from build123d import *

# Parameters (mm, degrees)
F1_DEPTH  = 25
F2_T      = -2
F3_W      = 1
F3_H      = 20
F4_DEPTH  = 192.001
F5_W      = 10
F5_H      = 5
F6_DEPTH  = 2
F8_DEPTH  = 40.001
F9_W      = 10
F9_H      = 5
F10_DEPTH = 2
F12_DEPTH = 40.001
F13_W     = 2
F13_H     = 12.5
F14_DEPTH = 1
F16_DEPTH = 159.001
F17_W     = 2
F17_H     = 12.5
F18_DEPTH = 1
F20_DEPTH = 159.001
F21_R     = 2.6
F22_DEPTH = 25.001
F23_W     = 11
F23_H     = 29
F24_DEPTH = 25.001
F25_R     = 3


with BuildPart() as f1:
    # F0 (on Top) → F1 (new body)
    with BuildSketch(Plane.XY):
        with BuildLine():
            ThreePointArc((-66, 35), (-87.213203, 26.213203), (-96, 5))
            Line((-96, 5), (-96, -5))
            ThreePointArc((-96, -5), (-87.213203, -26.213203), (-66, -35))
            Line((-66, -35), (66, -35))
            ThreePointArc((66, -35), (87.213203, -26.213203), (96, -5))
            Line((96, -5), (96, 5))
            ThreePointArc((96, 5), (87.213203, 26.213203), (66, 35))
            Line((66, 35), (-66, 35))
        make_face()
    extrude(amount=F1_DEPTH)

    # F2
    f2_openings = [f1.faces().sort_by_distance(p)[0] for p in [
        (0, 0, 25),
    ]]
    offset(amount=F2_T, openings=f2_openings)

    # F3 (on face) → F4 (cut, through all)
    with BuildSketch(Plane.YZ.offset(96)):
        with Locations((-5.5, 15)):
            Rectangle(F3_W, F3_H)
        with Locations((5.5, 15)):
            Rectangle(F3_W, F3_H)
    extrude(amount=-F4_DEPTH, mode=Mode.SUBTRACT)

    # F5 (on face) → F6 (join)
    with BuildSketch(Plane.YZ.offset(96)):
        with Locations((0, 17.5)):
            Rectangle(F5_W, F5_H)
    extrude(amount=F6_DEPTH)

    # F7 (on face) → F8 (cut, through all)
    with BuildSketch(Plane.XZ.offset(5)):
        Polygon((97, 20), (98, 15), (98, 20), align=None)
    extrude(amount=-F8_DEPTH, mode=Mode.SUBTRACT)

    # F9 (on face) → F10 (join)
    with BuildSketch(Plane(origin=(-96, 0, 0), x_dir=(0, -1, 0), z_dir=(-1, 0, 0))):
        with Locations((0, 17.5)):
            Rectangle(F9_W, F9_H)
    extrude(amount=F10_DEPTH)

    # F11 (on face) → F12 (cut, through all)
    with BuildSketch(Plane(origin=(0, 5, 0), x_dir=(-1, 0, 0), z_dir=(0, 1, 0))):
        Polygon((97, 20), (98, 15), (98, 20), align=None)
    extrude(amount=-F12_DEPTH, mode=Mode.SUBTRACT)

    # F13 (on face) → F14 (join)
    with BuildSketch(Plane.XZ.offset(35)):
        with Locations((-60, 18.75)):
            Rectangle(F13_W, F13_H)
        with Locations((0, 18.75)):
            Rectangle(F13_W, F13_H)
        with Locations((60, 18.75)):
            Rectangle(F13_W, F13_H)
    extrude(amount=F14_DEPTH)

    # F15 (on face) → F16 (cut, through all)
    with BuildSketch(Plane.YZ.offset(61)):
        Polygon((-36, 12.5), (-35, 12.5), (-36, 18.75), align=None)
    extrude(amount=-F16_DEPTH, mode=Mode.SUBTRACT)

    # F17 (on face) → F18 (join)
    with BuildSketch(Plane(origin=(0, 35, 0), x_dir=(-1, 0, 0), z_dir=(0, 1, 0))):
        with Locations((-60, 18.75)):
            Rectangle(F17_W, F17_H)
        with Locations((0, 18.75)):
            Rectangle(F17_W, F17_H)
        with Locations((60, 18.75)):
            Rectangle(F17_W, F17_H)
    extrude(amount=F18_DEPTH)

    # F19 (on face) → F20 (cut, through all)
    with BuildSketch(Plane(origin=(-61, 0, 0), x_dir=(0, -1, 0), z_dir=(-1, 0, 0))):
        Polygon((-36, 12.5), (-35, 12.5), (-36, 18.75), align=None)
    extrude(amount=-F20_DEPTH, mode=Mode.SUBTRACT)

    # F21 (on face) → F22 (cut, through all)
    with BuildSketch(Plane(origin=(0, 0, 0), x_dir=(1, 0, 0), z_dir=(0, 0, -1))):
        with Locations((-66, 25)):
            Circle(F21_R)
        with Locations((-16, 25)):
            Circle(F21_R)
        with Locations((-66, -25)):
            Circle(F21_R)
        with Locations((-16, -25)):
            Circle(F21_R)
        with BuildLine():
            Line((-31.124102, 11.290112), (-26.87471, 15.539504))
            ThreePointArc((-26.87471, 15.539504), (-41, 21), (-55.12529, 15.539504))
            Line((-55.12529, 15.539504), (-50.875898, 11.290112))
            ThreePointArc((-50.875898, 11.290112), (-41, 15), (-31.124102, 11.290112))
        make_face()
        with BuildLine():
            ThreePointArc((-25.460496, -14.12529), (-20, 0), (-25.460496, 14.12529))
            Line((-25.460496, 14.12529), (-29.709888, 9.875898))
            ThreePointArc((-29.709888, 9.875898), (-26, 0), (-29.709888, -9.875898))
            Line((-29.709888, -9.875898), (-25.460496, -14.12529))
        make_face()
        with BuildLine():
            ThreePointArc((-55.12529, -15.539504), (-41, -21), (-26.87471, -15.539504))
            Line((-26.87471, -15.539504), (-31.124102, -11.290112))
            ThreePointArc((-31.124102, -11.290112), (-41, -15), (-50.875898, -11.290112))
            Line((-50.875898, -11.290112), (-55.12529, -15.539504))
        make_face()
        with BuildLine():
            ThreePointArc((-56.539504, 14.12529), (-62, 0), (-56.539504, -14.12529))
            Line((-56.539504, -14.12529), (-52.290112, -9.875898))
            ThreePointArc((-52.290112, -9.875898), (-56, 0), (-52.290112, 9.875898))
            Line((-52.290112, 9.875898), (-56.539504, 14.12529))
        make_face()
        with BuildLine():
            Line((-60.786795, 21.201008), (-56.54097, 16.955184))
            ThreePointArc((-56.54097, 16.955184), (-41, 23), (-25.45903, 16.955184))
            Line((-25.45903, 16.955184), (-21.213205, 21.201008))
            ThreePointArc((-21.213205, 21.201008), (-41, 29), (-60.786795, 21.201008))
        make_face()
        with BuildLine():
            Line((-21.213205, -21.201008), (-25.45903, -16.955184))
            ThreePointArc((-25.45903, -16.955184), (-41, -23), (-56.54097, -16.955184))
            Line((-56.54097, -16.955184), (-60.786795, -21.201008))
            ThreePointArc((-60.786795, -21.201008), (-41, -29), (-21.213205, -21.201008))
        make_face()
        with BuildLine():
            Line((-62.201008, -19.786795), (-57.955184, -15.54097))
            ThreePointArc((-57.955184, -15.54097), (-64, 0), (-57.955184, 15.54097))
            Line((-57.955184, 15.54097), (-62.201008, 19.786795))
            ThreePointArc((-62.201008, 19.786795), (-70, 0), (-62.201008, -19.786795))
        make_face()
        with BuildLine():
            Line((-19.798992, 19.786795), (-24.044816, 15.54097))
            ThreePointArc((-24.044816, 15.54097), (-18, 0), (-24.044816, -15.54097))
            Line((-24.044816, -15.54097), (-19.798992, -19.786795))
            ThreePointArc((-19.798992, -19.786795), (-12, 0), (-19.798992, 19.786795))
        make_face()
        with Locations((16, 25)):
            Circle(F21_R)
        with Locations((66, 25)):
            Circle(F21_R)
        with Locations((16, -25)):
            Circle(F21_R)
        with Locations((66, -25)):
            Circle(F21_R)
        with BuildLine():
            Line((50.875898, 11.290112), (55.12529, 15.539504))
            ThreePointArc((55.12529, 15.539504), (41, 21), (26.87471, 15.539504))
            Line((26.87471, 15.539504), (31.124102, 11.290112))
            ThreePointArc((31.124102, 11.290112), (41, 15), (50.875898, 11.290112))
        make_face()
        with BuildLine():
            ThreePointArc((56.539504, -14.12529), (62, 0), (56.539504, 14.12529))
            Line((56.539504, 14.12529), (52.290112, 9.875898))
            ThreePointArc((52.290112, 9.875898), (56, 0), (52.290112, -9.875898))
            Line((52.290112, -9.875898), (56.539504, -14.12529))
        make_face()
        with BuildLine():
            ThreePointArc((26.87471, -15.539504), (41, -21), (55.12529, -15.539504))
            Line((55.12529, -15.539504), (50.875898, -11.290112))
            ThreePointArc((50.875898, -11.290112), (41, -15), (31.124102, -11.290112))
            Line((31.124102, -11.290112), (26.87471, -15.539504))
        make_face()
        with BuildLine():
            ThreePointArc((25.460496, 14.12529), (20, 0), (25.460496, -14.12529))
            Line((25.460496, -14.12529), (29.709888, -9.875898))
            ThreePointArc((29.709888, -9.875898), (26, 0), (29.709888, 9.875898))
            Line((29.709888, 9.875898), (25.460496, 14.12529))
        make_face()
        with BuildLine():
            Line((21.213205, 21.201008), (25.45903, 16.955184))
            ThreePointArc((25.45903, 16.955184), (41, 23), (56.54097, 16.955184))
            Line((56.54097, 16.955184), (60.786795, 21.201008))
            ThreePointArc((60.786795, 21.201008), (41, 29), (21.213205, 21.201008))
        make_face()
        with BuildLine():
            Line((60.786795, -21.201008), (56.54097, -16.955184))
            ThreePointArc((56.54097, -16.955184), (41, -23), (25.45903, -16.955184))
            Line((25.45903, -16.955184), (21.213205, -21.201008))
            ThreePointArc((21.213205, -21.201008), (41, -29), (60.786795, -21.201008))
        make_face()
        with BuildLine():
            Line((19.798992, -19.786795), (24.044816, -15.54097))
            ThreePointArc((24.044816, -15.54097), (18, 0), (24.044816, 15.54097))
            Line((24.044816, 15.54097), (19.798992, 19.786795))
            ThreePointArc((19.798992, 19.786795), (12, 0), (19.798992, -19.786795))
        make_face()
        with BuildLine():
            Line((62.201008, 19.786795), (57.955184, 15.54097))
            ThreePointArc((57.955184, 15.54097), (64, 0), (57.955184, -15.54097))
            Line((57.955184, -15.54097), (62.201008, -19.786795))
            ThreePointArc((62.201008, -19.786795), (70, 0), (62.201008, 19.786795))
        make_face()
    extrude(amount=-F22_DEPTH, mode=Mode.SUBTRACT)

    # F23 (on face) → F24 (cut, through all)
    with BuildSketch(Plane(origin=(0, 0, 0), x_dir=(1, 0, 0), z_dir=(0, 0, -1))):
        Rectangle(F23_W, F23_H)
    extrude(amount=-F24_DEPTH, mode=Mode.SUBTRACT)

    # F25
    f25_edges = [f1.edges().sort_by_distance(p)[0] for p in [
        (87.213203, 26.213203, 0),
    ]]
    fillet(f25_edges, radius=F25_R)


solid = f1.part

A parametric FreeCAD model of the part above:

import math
import FreeCAD as App
import Part
import Sketcher
Q = App.Units.Quantity


def edges_at(feature, points):
    """Names of the edges that pass closest to the given points."""
    edges = feature.Shape.Edges
    near = lambda p: min(range(len(edges)), key=lambda i: edges[i].distToShape(Part.Vertex(*p))[0])
    return sorted({f"Edge{near(p) + 1}" for p in points})


def faces_at(feature, points):
    """Names of the faces that lie closest to the given points."""
    faces = feature.Shape.Faces
    near = lambda p: min(range(len(faces)), key=lambda i: faces[i].distToShape(Part.Vertex(*p))[0])
    return sorted({f"Face{near(p) + 1}" for p in points})


def add_polygon(sketch, points):
    """Adds a closed chain of lines whose ends are joined by coincident constraints."""
    first, n = sketch.GeometryCount, len(points)
    for a, b in zip(points, points[1:] + points[:1]):
        sketch.addGeometry(Part.LineSegment(App.Vector(*a, 0), App.Vector(*b, 0)), False)
    for i in range(n):
        sketch.addConstraint(Sketcher.Constraint("Coincident", first + i, 2, first + (i + 1) % n, 1))

doc = App.newDocument("Part")
body = doc.addObject("PartDesign::Body", "Body")

# Sketch on XY plane
sketch1 = body.newObject("Sketcher::SketchObject", "Sketch")
sketch1.AttachmentSupport = (doc.getObject("XY_Plane"), [""])
sketch1.MapMode = "FlatFace"
sketch1.addGeometry([
    Part.ArcOfCircle(Part.Circle(App.Vector(-66, 5, 0), App.Vector(0, 0, 1), 30), math.radians(90), math.radians(180)),  # 0
    Part.LineSegment(App.Vector(-96, 5, 0), App.Vector(-96, -5, 0)),  # 1
    Part.ArcOfCircle(Part.Circle(App.Vector(-66, -5, 0), App.Vector(0, 0, 1), 30), math.radians(-180), math.radians(-90)),  # 2
    Part.LineSegment(App.Vector(-66, -35, 0), App.Vector(66, -35, 0)),  # 3
    Part.ArcOfCircle(Part.Circle(App.Vector(66, -5, 0), App.Vector(0, 0, 1), 30), math.radians(-90), math.radians(0)),  # 4
    Part.LineSegment(App.Vector(96, -5, 0), App.Vector(96, 5, 0)),  # 5
    Part.ArcOfCircle(Part.Circle(App.Vector(66, 5, 0), App.Vector(0, 0, 1), 30), math.radians(0), math.radians(90)),  # 6
    Part.LineSegment(App.Vector(66, 35, 0), App.Vector(-66, 35, 0)),  # 7
], False)
sketch1.addConstraint([
    Sketcher.Constraint("Tangent", 0, 2, 1, 1),
    Sketcher.Constraint("Tangent", 1, 2, 2, 1),
    Sketcher.Constraint("Tangent", 2, 2, 3, 1),
    Sketcher.Constraint("Tangent", 3, 2, 4, 1),
    Sketcher.Constraint("Tangent", 4, 2, 5, 1),
    Sketcher.Constraint("Tangent", 5, 2, 6, 1),
    Sketcher.Constraint("Tangent", 6, 2, 7, 1),
    Sketcher.Constraint("Tangent", 7, 2, 0, 1),
    Sketcher.Constraint("Vertical", 1),
    Sketcher.Constraint("Horizontal", 3),
    Sketcher.Constraint("Vertical", 5),
    Sketcher.Constraint("Horizontal", 7),
    Sketcher.Constraint("Equal", 0, 2),
    Sketcher.Constraint("Equal", 2, 4),
    Sketcher.Constraint("Equal", 4, 6),
    Sketcher.Constraint("Symmetric", 0, 3, 4, 3, -1, 1),
    Sketcher.Constraint("Radius", 0, Q("30.000001 mm")),
    Sketcher.Constraint("DistanceX", 3, 1, 3, 2, Q("132 mm")),
    Sketcher.Constraint("DistanceY", 1, 2, 1, 1, Q("10 mm")),
])
pad1 = body.newObject("PartDesign::Pad", "Pad")
pad1.Profile = sketch1
pad1.Length = 25
doc.recompute()

thickness = body.newObject("PartDesign::Thickness", "Thickness")
thickness.Base = (pad1, faces_at(pad1, [(0, 0, 25)]))
thickness.Value = 2
thickness.Reversed = True
thickness.Join = "Arc"

# Sketch on YZ plane
sketch2 = body.newObject("Sketcher::SketchObject", "Sketch001")
sketch2.AttachmentSupport = (doc.getObject("YZ_Plane"), [""])
sketch2.MapMode = "FlatFace"
sketch2.AttachmentOffset = App.Placement(App.Vector(0, 0, 96), App.Rotation())
add_polygon(sketch2, [(-6, 25), (-6, 5), (-5, 5), (-5, 25)])  # lines 0-3
add_polygon(sketch2, [(5, 25), (5, 5), (6, 5), (6, 25)])  # lines 4-7
sketch2.addConstraint([
    Sketcher.Constraint("Vertical", 0),
    Sketcher.Constraint("Horizontal", 1),
    Sketcher.Constraint("Vertical", 2),
    Sketcher.Constraint("Horizontal", 3),
    Sketcher.Constraint("Vertical", 4),
    Sketcher.Constraint("Horizontal", 5),
    Sketcher.Constraint("Vertical", 6),
    Sketcher.Constraint("Horizontal", 7),
    Sketcher.Constraint("Symmetric", 1, 2, 4, 2, -2),
    Sketcher.Constraint("Symmetric", 3, 2, 6, 2, -2),
    Sketcher.Constraint("DistanceX", 1, 1, 1, 2, Q("1 mm")),
    Sketcher.Constraint("DistanceY", 0, 2, 0, 1, Q("20 mm")),
    Sketcher.Constraint("DistanceX", 0, 2, -1, 1, Q("6 mm")),
    Sketcher.Constraint("DistanceY", -1, 1, 0, 2, Q("5 mm")),
])
pocket1 = body.newObject("PartDesign::Pocket", "Pocket")
pocket1.Profile = sketch2
pocket1.Type = "ThroughAll"

# Sketch on YZ plane
sketch3 = body.newObject("Sketcher::SketchObject", "Sketch002")
sketch3.AttachmentSupport = (doc.getObject("YZ_Plane"), [""])
sketch3.MapMode = "FlatFace"
sketch3.AttachmentOffset = App.Placement(App.Vector(0, 0, 96), App.Rotation())
add_polygon(sketch3, [(-5, 20), (-5, 15), (5, 15), (5, 20)])  # lines 0-3
sketch3.addConstraint([
    Sketcher.Constraint("Vertical", 0),
    Sketcher.Constraint("Horizontal", 1),
    Sketcher.Constraint("Vertical", 2),
    Sketcher.Constraint("Horizontal", 3),
    Sketcher.Constraint("DistanceX", 1, 1, 1, 2, Q("10 mm")),
    Sketcher.Constraint("DistanceY", 0, 2, 0, 1, Q("5 mm")),
    Sketcher.Constraint("DistanceX", 0, 2, -1, 1, Q("5 mm")),
    Sketcher.Constraint("DistanceY", -1, 1, 0, 2, Q("15 mm")),
])
pad2 = body.newObject("PartDesign::Pad", "Pad001")
pad2.Profile = sketch3
pad2.Length = 2

# Sketch on XZ plane
sketch4 = body.newObject("Sketcher::SketchObject", "Sketch003")
sketch4.AttachmentSupport = (doc.getObject("XZ_Plane"), [""])
sketch4.MapMode = "FlatFace"
sketch4.AttachmentOffset = App.Placement(App.Vector(0, 0, 5), App.Rotation())
add_polygon(sketch4, [(97, 20), (98, 15), (98, 20)])  # lines 0-2
sketch4.addConstraint([
    Sketcher.Constraint("Vertical", 1),
    Sketcher.Constraint("Horizontal", 2),
    Sketcher.Constraint("DistanceX", 2, 2, 2, 1, Q("1 mm")),
    Sketcher.Constraint("DistanceY", 1, 1, 1, 2, Q("5 mm")),
    Sketcher.Constraint("DistanceX", -1, 1, 0, 2, Q("98 mm")),
    Sketcher.Constraint("DistanceY", -1, 1, 0, 2, Q("15 mm")),
])
pocket2 = body.newObject("PartDesign::Pocket", "Pocket001")
pocket2.Profile = sketch4
pocket2.Type = "ThroughAll"

# Sketch on YZ plane
sketch5 = body.newObject("Sketcher::SketchObject", "Sketch004")
sketch5.AttachmentSupport = (doc.getObject("YZ_Plane"), [""])
sketch5.MapMode = "FlatFace"
sketch5.AttachmentOffset = App.Placement(App.Vector(0, 0, -96), App.Rotation())
add_polygon(sketch5, [(5, 20), (5, 15), (-5, 15), (-5, 20)])  # lines 0-3
sketch5.addConstraint([
    Sketcher.Constraint("Vertical", 0),
    Sketcher.Constraint("Horizontal", 1),
    Sketcher.Constraint("Vertical", 2),
    Sketcher.Constraint("Horizontal", 3),
    Sketcher.Constraint("DistanceX", 1, 2, 1, 1, Q("10 mm")),
    Sketcher.Constraint("DistanceY", 0, 2, 0, 1, Q("5 mm")),
    Sketcher.Constraint("DistanceX", -1, 1, 0, 2, Q("5 mm")),
    Sketcher.Constraint("DistanceY", -1, 1, 0, 2, Q("15 mm")),
])
pad3 = body.newObject("PartDesign::Pad", "Pad002")
pad3.Profile = sketch5
pad3.Length = 2
pad3.Reversed = True

# Sketch on XZ plane
sketch6 = body.newObject("Sketcher::SketchObject", "Sketch005")
sketch6.AttachmentSupport = (doc.getObject("XZ_Plane"), [""])
sketch6.MapMode = "FlatFace"
sketch6.AttachmentOffset = App.Placement(App.Vector(0, 0, -5), App.Rotation())
add_polygon(sketch6, [(-97, 20), (-98, 15), (-98, 20)])  # lines 0-2
sketch6.addConstraint([
    Sketcher.Constraint("Vertical", 1),
    Sketcher.Constraint("Horizontal", 2),
    Sketcher.Constraint("DistanceX", 2, 1, 2, 2, Q("1 mm")),
    Sketcher.Constraint("DistanceY", 1, 1, 1, 2, Q("5 mm")),
    Sketcher.Constraint("DistanceX", 0, 2, -1, 1, Q("98 mm")),
    Sketcher.Constraint("DistanceY", -1, 1, 0, 2, Q("15 mm")),
])
pocket3 = body.newObject("PartDesign::Pocket", "Pocket002")
pocket3.Profile = sketch6
pocket3.Type = "ThroughAll"
pocket3.Reversed = True

# Sketch on XZ plane
sketch7 = body.newObject("Sketcher::SketchObject", "Sketch006")
sketch7.AttachmentSupport = (doc.getObject("XZ_Plane"), [""])
sketch7.MapMode = "FlatFace"
sketch7.AttachmentOffset = App.Placement(App.Vector(0, 0, 35), App.Rotation())
add_polygon(sketch7, [(-61, 25), (-61, 12.5), (-59, 12.5), (-59, 25)])  # lines 0-3
add_polygon(sketch7, [(-1, 25), (-1, 12.5), (1, 12.5), (1, 25)])  # lines 4-7
add_polygon(sketch7, [(59, 25), (59, 12.5), (61, 12.5), (61, 25)])  # lines 8-11
sketch7.addConstraint([
    Sketcher.Constraint("Vertical", 0),
    Sketcher.Constraint("Horizontal", 1),
    Sketcher.Constraint("Vertical", 2),
    Sketcher.Constraint("Horizontal", 3),
    Sketcher.Constraint("Vertical", 4),
    Sketcher.Constraint("Horizontal", 5),
    Sketcher.Constraint("Vertical", 6),
    Sketcher.Constraint("Horizontal", 7),
    Sketcher.Constraint("Vertical", 8),
    Sketcher.Constraint("Horizontal", 9),
    Sketcher.Constraint("Vertical", 10),
    Sketcher.Constraint("Horizontal", 11),
    Sketcher.Constraint("Symmetric", 1, 2, 8, 2, -2),
    Sketcher.Constraint("Symmetric", 3, 2, 10, 2, -2),
    Sketcher.Constraint("Horizontal", 1, 2, 4, 2),
    Sketcher.Constraint("Horizontal", 3, 2, 6, 2),
    Sketcher.Constraint("Equal", 3, 5),
    Sketcher.Constraint("DistanceX", 1, 1, 1, 2, Q("2 mm")),
    Sketcher.Constraint("DistanceY", 0, 2, 0, 1, Q("12.5 mm")),
    Sketcher.Constraint("DistanceX", 0, 2, -1, 1, Q("61 mm")),
    Sketcher.Constraint("DistanceY", -1, 1, 2, 2, Q("25 mm")),
    Sketcher.Constraint("DistanceX", 4, 2, -1, 1, Q("1 mm")),
])
pad4 = body.newObject("PartDesign::Pad", "Pad003")
pad4.Profile = sketch7
pad4.Length = 1

# Sketch on YZ plane
sketch8 = body.newObject("Sketcher::SketchObject", "Sketch007")
sketch8.AttachmentSupport = (doc.getObject("YZ_Plane"), [""])
sketch8.MapMode = "FlatFace"
sketch8.AttachmentOffset = App.Placement(App.Vector(0, 0, 61), App.Rotation())
add_polygon(sketch8, [(-36, 12.5), (-35, 12.5), (-36, 18.8)])  # lines 0-2
sketch8.addConstraint([
    Sketcher.Constraint("Horizontal", 0),
    Sketcher.Constraint("Vertical", 2),
    Sketcher.Constraint("DistanceX", 0, 1, 0, 2, Q("1 mm")),
    Sketcher.Constraint("DistanceX", 0, 2, -1, 1, Q("35 mm")),
    Sketcher.Constraint("DistanceY", 2, 2, 2, 1, Q("6.25 mm")),
    Sketcher.Constraint("DistanceY", -1, 1, 0, 2, Q("12.5 mm")),
])
pocket4 = body.newObject("PartDesign::Pocket", "Pocket003")
pocket4.Profile = sketch8
pocket4.Type = "ThroughAll"

# Sketch on XZ plane
sketch9 = body.newObject("Sketcher::SketchObject", "Sketch008")
sketch9.AttachmentSupport = (doc.getObject("XZ_Plane"), [""])
sketch9.MapMode = "FlatFace"
sketch9.AttachmentOffset = App.Placement(App.Vector(0, 0, -35), App.Rotation())
add_polygon(sketch9, [(61, 25), (61, 12.5), (59, 12.5), (59, 25)])  # lines 0-3
add_polygon(sketch9, [(1, 25), (1, 12.5), (-1, 12.5), (-1, 25)])  # lines 4-7
add_polygon(sketch9, [(-59, 25), (-59, 12.5), (-61, 12.5), (-61, 25)])  # lines 8-11
sketch9.addConstraint([
    Sketcher.Constraint("Vertical", 0),
    Sketcher.Constraint("Horizontal", 1),
    Sketcher.Constraint("Vertical", 2),
    Sketcher.Constraint("Horizontal", 3),
    Sketcher.Constraint("Vertical", 4),
    Sketcher.Constraint("Horizontal", 5),
    Sketcher.Constraint("Vertical", 6),
    Sketcher.Constraint("Horizontal", 7),
    Sketcher.Constraint("Vertical", 8),
    Sketcher.Constraint("Horizontal", 9),
    Sketcher.Constraint("Vertical", 10),
    Sketcher.Constraint("Horizontal", 11),
    Sketcher.Constraint("Symmetric", 1, 2, 8, 2, -2),
    Sketcher.Constraint("Symmetric", 3, 2, 10, 2, -2),
    Sketcher.Constraint("Horizontal", 1, 2, 4, 2),
    Sketcher.Constraint("Horizontal", 3, 2, 6, 2),
    Sketcher.Constraint("Equal", 3, 5),
    Sketcher.Constraint("DistanceX", 1, 2, 1, 1, Q("2 mm")),
    Sketcher.Constraint("DistanceY", 0, 2, 0, 1, Q("12.5 mm")),
    Sketcher.Constraint("DistanceX", -1, 1, 0, 2, Q("61 mm")),
    Sketcher.Constraint("DistanceY", -1, 1, 2, 2, Q("25 mm")),
    Sketcher.Constraint("DistanceX", -1, 1, 4, 2, Q("1 mm")),
])
pad5 = body.newObject("PartDesign::Pad", "Pad004")
pad5.Profile = sketch9
pad5.Length = 1
pad5.Reversed = True

# Sketch on YZ plane
sketch10 = body.newObject("Sketcher::SketchObject", "Sketch009")
sketch10.AttachmentSupport = (doc.getObject("YZ_Plane"), [""])
sketch10.MapMode = "FlatFace"
sketch10.AttachmentOffset = App.Placement(App.Vector(0, 0, -61), App.Rotation())
add_polygon(sketch10, [(36, 12.5), (35, 12.5), (36, 18.8)])  # lines 0-2
sketch10.addConstraint([
    Sketcher.Constraint("Horizontal", 0),
    Sketcher.Constraint("Vertical", 2),
    Sketcher.Constraint("DistanceX", 0, 2, 0, 1, Q("1 mm")),
    Sketcher.Constraint("DistanceX", -1, 1, 0, 2, Q("35 mm")),
    Sketcher.Constraint("DistanceY", 2, 2, 2, 1, Q("6.25 mm")),
    Sketcher.Constraint("DistanceY", -1, 1, 0, 2, Q("12.5 mm")),
])
pocket5 = body.newObject("PartDesign::Pocket", "Pocket004")
pocket5.Profile = sketch10
pocket5.Type = "ThroughAll"
pocket5.Reversed = True

# Sketch on XY plane
sketch11 = body.newObject("Sketcher::SketchObject", "Sketch010")
sketch11.AttachmentSupport = (doc.getObject("XY_Plane"), [""])
sketch11.MapMode = "FlatFace"
sketch11.addGeometry([
    Part.Circle(App.Vector(-66, -25, 0), App.Vector(0, 0, 1), 2.6),  # 0
    Part.Circle(App.Vector(-16, -25, 0), App.Vector(0, 0, 1), 2.6),  # 1
    Part.Circle(App.Vector(-66, 25, 0), App.Vector(0, 0, 1), 2.6),  # 2
    Part.Circle(App.Vector(-16, 25, 0), App.Vector(0, 0, 1), 2.6),  # 3
    Part.LineSegment(App.Vector(-31.1, -11.3, 0), App.Vector(-26.9, -15.5, 0)),  # 4
    Part.ArcOfCircle(Part.Circle(App.Vector(-41, 0, 0), App.Vector(0, 0, 1), 21), math.radians(-132), math.radians(-48)),  # 5
    Part.LineSegment(App.Vector(-55.1, -15.5, 0), App.Vector(-50.9, -11.3, 0)),  # 6
    Part.ArcOfCircle(Part.Circle(App.Vector(-41, 0, 0), App.Vector(0, 0, 1), 15), math.radians(-131), math.radians(-49)),  # 7
    Part.ArcOfCircle(Part.Circle(App.Vector(-41, 0, 0), App.Vector(0, 0, 1), 21), math.radians(-42), math.radians(42)),  # 8
    Part.LineSegment(App.Vector(-25.5, -14.1, 0), App.Vector(-29.7, -9.9, 0)),  # 9
    Part.ArcOfCircle(Part.Circle(App.Vector(-41, 0, 0), App.Vector(0, 0, 1), 15), math.radians(-41), math.radians(41)),  # 10
    Part.LineSegment(App.Vector(-29.7, 9.9, 0), App.Vector(-25.5, 14.1, 0)),  # 11
    Part.ArcOfCircle(Part.Circle(App.Vector(-41, 0, 0), App.Vector(0, 0, 1), 21), math.radians(48), math.radians(132)),  # 12
    Part.LineSegment(App.Vector(-26.9, 15.5, 0), App.Vector(-31.1, 11.3, 0)),  # 13
    Part.ArcOfCircle(Part.Circle(App.Vector(-41, 0, 0), App.Vector(0, 0, 1), 15), math.radians(49), math.radians(131)),  # 14
    Part.LineSegment(App.Vector(-50.9, 11.3, 0), App.Vector(-55.1, 15.5, 0)),  # 15
    Part.ArcOfCircle(Part.Circle(App.Vector(-41, 0, 0), App.Vector(0, 0, 1), 21), math.radians(138), math.radians(222)),  # 16
    Part.LineSegment(App.Vector(-56.5, 14.1, 0), App.Vector(-52.3, 9.9, 0)),  # 17
    Part.ArcOfCircle(Part.Circle(App.Vector(-41, 0, 0), App.Vector(0, 0, 1), 15), math.radians(139), math.radians(221)),  # 18
    Part.LineSegment(App.Vector(-52.3, -9.9, 0), App.Vector(-56.5, -14.1, 0)),  # 19
    Part.LineSegment(App.Vector(-60.8, -21.2, 0), App.Vector(-56.5, -17, 0)),  # 20
    Part.ArcOfCircle(Part.Circle(App.Vector(-41, 0, 0), App.Vector(0, 0, 1), 23), math.radians(-133), math.radians(-47)),  # 21
    Part.LineSegment(App.Vector(-25.5, -17, 0), App.Vector(-21.2, -21.2, 0)),  # 22
    Part.ArcOfCircle(Part.Circle(App.Vector(-41, 0, 0), App.Vector(0, 0, 1), 29), math.radians(-133), math.radians(-47)),  # 23
    Part.LineSegment(App.Vector(-21.2, 21.2, 0), App.Vector(-25.5, 17, 0)),  # 24
    Part.ArcOfCircle(Part.Circle(App.Vector(-41, 0, 0), App.Vector(0, 0, 1), 23), math.radians(47), math.radians(133)),  # 25
    Part.LineSegment(App.Vector(-56.5, 17, 0), App.Vector(-60.8, 21.2, 0)),  # 26
    Part.ArcOfCircle(Part.Circle(App.Vector(-41, 0, 0), App.Vector(0, 0, 1), 29), math.radians(47), math.radians(133)),  # 27
    Part.LineSegment(App.Vector(-62.2, 19.8, 0), App.Vector(-58, 15.5, 0)),  # 28
    Part.ArcOfCircle(Part.Circle(App.Vector(-41, 0, 0), App.Vector(0, 0, 1), 23), math.radians(137), math.radians(223)),  # 29
    Part.LineSegment(App.Vector(-58, -15.5, 0), App.Vector(-62.2, -19.8, 0)),  # 30
    Part.ArcOfCircle(Part.Circle(App.Vector(-41, 0, 0), App.Vector(0, 0, 1), 29), math.radians(137), math.radians(223)),  # 31
    Part.LineSegment(App.Vector(-19.8, -19.8, 0), App.Vector(-24, -15.5, 0)),  # 32
    Part.ArcOfCircle(Part.Circle(App.Vector(-41, 0, 0), App.Vector(0, 0, 1), 23), math.radians(-43), math.radians(43)),  # 33
    Part.LineSegment(App.Vector(-24, 15.5, 0), App.Vector(-19.8, 19.8, 0)),  # 34
    Part.ArcOfCircle(Part.Circle(App.Vector(-41, 0, 0), App.Vector(0, 0, 1), 29), math.radians(-43), math.radians(43)),  # 35
    Part.Circle(App.Vector(16, -25, 0), App.Vector(0, 0, 1), 2.6),  # 36
    Part.Circle(App.Vector(66, -25, 0), App.Vector(0, 0, 1), 2.6),  # 37
    Part.Circle(App.Vector(16, 25, 0), App.Vector(0, 0, 1), 2.6),  # 38
    Part.Circle(App.Vector(66, 25, 0), App.Vector(0, 0, 1), 2.6),  # 39
    Part.LineSegment(App.Vector(50.9, -11.3, 0), App.Vector(55.1, -15.5, 0)),  # 40
    Part.ArcOfCircle(Part.Circle(App.Vector(41, 0, 0), App.Vector(0, 0, 1), 21), math.radians(-132), math.radians(-48)),  # 41
    Part.LineSegment(App.Vector(26.9, -15.5, 0), App.Vector(31.1, -11.3, 0)),  # 42
    Part.ArcOfCircle(Part.Circle(App.Vector(41, 0, 0), App.Vector(0, 0, 1), 15), math.radians(-131), math.radians(-49)),  # 43
    Part.ArcOfCircle(Part.Circle(App.Vector(41, 0, 0), App.Vector(0, 0, 1), 21), math.radians(-42), math.radians(42)),  # 44
    Part.LineSegment(App.Vector(56.5, -14.1, 0), App.Vector(52.3, -9.9, 0)),  # 45
    Part.ArcOfCircle(Part.Circle(App.Vector(41, 0, 0), App.Vector(0, 0, 1), 15), math.radians(-41), math.radians(41)),  # 46
    Part.LineSegment(App.Vector(52.3, 9.9, 0), App.Vector(56.5, 14.1, 0)),  # 47
    Part.ArcOfCircle(Part.Circle(App.Vector(41, 0, 0), App.Vector(0, 0, 1), 21), math.radians(48), math.radians(132)),  # 48
    Part.LineSegment(App.Vector(55.1, 15.5, 0), App.Vector(50.9, 11.3, 0)),  # 49
    Part.ArcOfCircle(Part.Circle(App.Vector(41, 0, 0), App.Vector(0, 0, 1), 15), math.radians(49), math.radians(131)),  # 50
    Part.LineSegment(App.Vector(31.1, 11.3, 0), App.Vector(26.9, 15.5, 0)),  # 51
    Part.ArcOfCircle(Part.Circle(App.Vector(41, 0, 0), App.Vector(0, 0, 1), 21), math.radians(138), math.radians(222)),  # 52
    Part.LineSegment(App.Vector(25.5, 14.1, 0), App.Vector(29.7, 9.9, 0)),  # 53
    Part.ArcOfCircle(Part.Circle(App.Vector(41, 0, 0), App.Vector(0, 0, 1), 15), math.radians(139), math.radians(221)),  # 54
    Part.LineSegment(App.Vector(29.7, -9.9, 0), App.Vector(25.5, -14.1, 0)),  # 55
    Part.LineSegment(App.Vector(21.2, -21.2, 0), App.Vector(25.5, -17, 0)),  # 56
    Part.ArcOfCircle(Part.Circle(App.Vector(41, 0, 0), App.Vector(0, 0, 1), 23), math.radians(-133), math.radians(-47)),  # 57
    Part.LineSegment(App.Vector(56.5, -17, 0), App.Vector(60.8, -21.2, 0)),  # 58
    Part.ArcOfCircle(Part.Circle(App.Vector(41, 0, 0), App.Vector(0, 0, 1), 29), math.radians(-133), math.radians(-47)),  # 59
    Part.LineSegment(App.Vector(60.8, 21.2, 0), App.Vector(56.5, 17, 0)),  # 60
    Part.ArcOfCircle(Part.Circle(App.Vector(41, 0, 0), App.Vector(0, 0, 1), 23), math.radians(47), math.radians(133)),  # 61
    Part.LineSegment(App.Vector(25.5, 17, 0), App.Vector(21.2, 21.2, 0)),  # 62
    Part.ArcOfCircle(Part.Circle(App.Vector(41, 0, 0), App.Vector(0, 0, 1), 29), math.radians(47), math.radians(133)),  # 63
    Part.LineSegment(App.Vector(19.8, 19.8, 0), App.Vector(24, 15.5, 0)),  # 64
    Part.ArcOfCircle(Part.Circle(App.Vector(41, 0, 0), App.Vector(0, 0, 1), 23), math.radians(137), math.radians(223)),  # 65
    Part.LineSegment(App.Vector(24, -15.5, 0), App.Vector(19.8, -19.8, 0)),  # 66
    Part.ArcOfCircle(Part.Circle(App.Vector(41, 0, 0), App.Vector(0, 0, 1), 29), math.radians(137), math.radians(223)),  # 67
    Part.LineSegment(App.Vector(62.2, -19.8, 0), App.Vector(58, -15.5, 0)),  # 68
    Part.ArcOfCircle(Part.Circle(App.Vector(41, 0, 0), App.Vector(0, 0, 1), 23), math.radians(-43), math.radians(43)),  # 69
    Part.LineSegment(App.Vector(58, 15.5, 0), App.Vector(62.2, 19.8, 0)),  # 70
    Part.ArcOfCircle(Part.Circle(App.Vector(41, 0, 0), App.Vector(0, 0, 1), 29), math.radians(-43), math.radians(43)),  # 71
], False)
sketch11.addConstraint([
    Sketcher.Constraint("Coincident", 4, 2, 5, 2),
    Sketcher.Constraint("Coincident", 5, 1, 6, 1),
    Sketcher.Constraint("Coincident", 6, 2, 7, 1),
    Sketcher.Constraint("Coincident", 7, 2, 4, 1),
    Sketcher.Constraint("Coincident", 8, 1, 9, 1),
    Sketcher.Constraint("Coincident", 9, 2, 10, 1),
    Sketcher.Constraint("Coincident", 10, 2, 11, 1),
    Sketcher.Constraint("Coincident", 11, 2, 8, 2),
    Sketcher.Constraint("Coincident", 12, 1, 13, 1),
    Sketcher.Constraint("Coincident", 13, 2, 14, 1),
    Sketcher.Constraint("Coincident", 14, 2, 15, 1),
    Sketcher.Constraint("Coincident", 15, 2, 12, 2),
    Sketcher.Constraint("Coincident", 16, 1, 17, 1),
    Sketcher.Constraint("Coincident", 17, 2, 18, 1),
    Sketcher.Constraint("Coincident", 18, 2, 19, 1),
    Sketcher.Constraint("Coincident", 19, 2, 16, 2),
    Sketcher.Constraint("Coincident", 20, 2, 21, 1),
    Sketcher.Constraint("Coincident", 21, 2, 22, 1),
    Sketcher.Constraint("Coincident", 22, 2, 23, 2),
    Sketcher.Constraint("Coincident", 23, 1, 20, 1),
    Sketcher.Constraint("Coincident", 24, 2, 25, 1),
    Sketcher.Constraint("Coincident", 25, 2, 26, 1),
    Sketcher.Constraint("Coincident", 26, 2, 27, 2),
    Sketcher.Constraint("Coincident", 27, 1, 24, 1),
    Sketcher.Constraint("Coincident", 28, 2, 29, 1),
    Sketcher.Constraint("Coincident", 29, 2, 30, 1),
    Sketcher.Constraint("Coincident", 30, 2, 31, 2),
    Sketcher.Constraint("Coincident", 31, 1, 28, 1),
    Sketcher.Constraint("Coincident", 32, 2, 33, 1),
    Sketcher.Constraint("Coincident", 33, 2, 34, 1),
    Sketcher.Constraint("Coincident", 34, 2, 35, 2),
    Sketcher.Constraint("Coincident", 35, 1, 32, 1),
    Sketcher.Constraint("Coincident", 40, 2, 41, 2),
    Sketcher.Constraint("Coincident", 41, 1, 42, 1),
    Sketcher.Constraint("Coincident", 42, 2, 43, 1),
    Sketcher.Constraint("Coincident", 43, 2, 40, 1),
    Sketcher.Constraint("Coincident", 44, 1, 45, 1),
    Sketcher.Constraint("Coincident", 45, 2, 46, 1),
    Sketcher.Constraint("Coincident", 46, 2, 47, 1),
    Sketcher.Constraint("Coincident", 47, 2, 44, 2),
    Sketcher.Constraint("Coincident", 48, 1, 49, 1),
    Sketcher.Constraint("Coincident", 49, 2, 50, 1),
    Sketcher.Constraint("Coincident", 50, 2, 51, 1),
    Sketcher.Constraint("Coincident", 51, 2, 48, 2),
    Sketcher.Constraint("Coincident", 52, 1, 53, 1),
    Sketcher.Constraint("Coincident", 53, 2, 54, 1),
    Sketcher.Constraint("Coincident", 54, 2, 55, 1),
    Sketcher.Constraint("Coincident", 55, 2, 52, 2),
    Sketcher.Constraint("Coincident", 56, 2, 57, 1),
    Sketcher.Constraint("Coincident", 57, 2, 58, 1),
    Sketcher.Constraint("Coincident", 58, 2, 59, 2),
    Sketcher.Constraint("Coincident", 59, 1, 56, 1),
    Sketcher.Constraint("Coincident", 60, 2, 61, 1),
    Sketcher.Constraint("Coincident", 61, 2, 62, 1),
    Sketcher.Constraint("Coincident", 62, 2, 63, 2),
    Sketcher.Constraint("Coincident", 63, 1, 60, 1),
    Sketcher.Constraint("Coincident", 64, 2, 65, 1),
    Sketcher.Constraint("Coincident", 65, 2, 66, 1),
    Sketcher.Constraint("Coincident", 66, 2, 67, 2),
    Sketcher.Constraint("Coincident", 67, 1, 64, 1),
    Sketcher.Constraint("Coincident", 68, 2, 69, 1),
    Sketcher.Constraint("Coincident", 69, 2, 70, 1),
    Sketcher.Constraint("Coincident", 70, 2, 71, 2),
    Sketcher.Constraint("Coincident", 71, 1, 68, 1),
    Sketcher.Constraint("Coincident", 7, 3, 5, 3),
    Sketcher.Constraint("Coincident", 8, 3, 5, 3),
    Sketcher.Constraint("Coincident", 10, 3, 5, 3),
    Sketcher.Constraint("Coincident", 12, 3, 5, 3),
    Sketcher.Constraint("Coincident", 14, 3, 5, 3),
    Sketcher.Constraint("Coincident", 16, 3, 5, 3),
    Sketcher.Constraint("Coincident", 18, 3, 5, 3),
    Sketcher.Constraint("Coincident", 21, 3, 5, 3),
    Sketcher.Constraint("Coincident", 23, 3, 5, 3),
    Sketcher.Constraint("Coincident", 25, 3, 5, 3),
    Sketcher.Constraint("Coincident", 27, 3, 5, 3),
    Sketcher.Constraint("Coincident", 29, 3, 5, 3),
    Sketcher.Constraint("Coincident", 31, 3, 5, 3),
    Sketcher.Constraint("Coincident", 33, 3, 5, 3),
    Sketcher.Constraint("Coincident", 35, 3, 5, 3),
    Sketcher.Constraint("Coincident", 43, 3, 41, 3),
    Sketcher.Constraint("Coincident", 44, 3, 41, 3),
    Sketcher.Constraint("Coincident", 46, 3, 41, 3),
    Sketcher.Constraint("Coincident", 48, 3, 41, 3),
    Sketcher.Constraint("Coincident", 50, 3, 41, 3),
    Sketcher.Constraint("Coincident", 52, 3, 41, 3),
    Sketcher.Constraint("Coincident", 54, 3, 41, 3),
    Sketcher.Constraint("Coincident", 57, 3, 41, 3),
    Sketcher.Constraint("Coincident", 59, 3, 41, 3),
    Sketcher.Constraint("Coincident", 61, 3, 41, 3),
    Sketcher.Constraint("Coincident", 63, 3, 41, 3),
    Sketcher.Constraint("Coincident", 65, 3, 41, 3),
    Sketcher.Constraint("Coincident", 67, 3, 41, 3),
    Sketcher.Constraint("Coincident", 69, 3, 41, 3),
    Sketcher.Constraint("Coincident", 71, 3, 41, 3),
    Sketcher.Constraint("Equal", 0, 1),
    Sketcher.Constraint("Equal", 1, 2),
    Sketcher.Constraint("Equal", 2, 3),
    Sketcher.Constraint("Equal", 5, 8),
    Sketcher.Constraint("Equal", 7, 10),
    Sketcher.Constraint("Equal", 8, 12),
    Sketcher.Constraint("Equal", 10, 14),
    Sketcher.Constraint("Equal", 12, 16),
    Sketcher.Constraint("Equal", 14, 18),
    Sketcher.Constraint("Equal", 21, 25),
    Sketcher.Constraint("Equal", 23, 27),
    Sketcher.Constraint("Equal", 25, 29),
    Sketcher.Constraint("Equal", 27, 31),
    Sketcher.Constraint("Equal", 29, 33),
    Sketcher.Constraint("Equal", 31, 35),
    Sketcher.Constraint("Equal", 3, 36),
    Sketcher.Constraint("Equal", 36, 37),
    Sketcher.Constraint("Equal", 37, 38),
    Sketcher.Constraint("Equal", 38, 39),
    Sketcher.Constraint("Equal", 16, 41),
    Sketcher.Constraint("Equal", 18, 43),
    Sketcher.Constraint("Equal", 41, 44),
    Sketcher.Constraint("Equal", 43, 46),
    Sketcher.Constraint("Equal", 44, 48),
    Sketcher.Constraint("Equal", 46, 50),
    Sketcher.Constraint("Equal", 48, 52),
    Sketcher.Constraint("Equal", 50, 54),
    Sketcher.Constraint("Equal", 33, 57),
    Sketcher.Constraint("Equal", 35, 59),
    Sketcher.Constraint("Equal", 57, 61),
    Sketcher.Constraint("Equal", 59, 63),
    Sketcher.Constraint("Equal", 61, 65),
    Sketcher.Constraint("Equal", 63, 67),
    Sketcher.Constraint("Equal", 65, 69),
    Sketcher.Constraint("Equal", 67, 71),
    Sketcher.Constraint("Symmetric", 3, 3, 36, 3, -1, 1),
    Sketcher.Constraint("Symmetric", 2, 3, 37, 3, -1, 1),
    Sketcher.Constraint("Symmetric", 1, 3, 38, 3, -1, 1),
    Sketcher.Constraint("Symmetric", 0, 3, 39, 3, -1, 1),
    Sketcher.Constraint("Symmetric", 5, 3, 41, 3, -1, 1),
    Sketcher.Constraint("Symmetric", 1, 3, 36, 3, -2),
    Sketcher.Constraint("Symmetric", 0, 3, 37, 3, -2),
    Sketcher.Constraint("Symmetric", 5, 1, 40, 2, -2),
    Sketcher.Constraint("Perpendicular", 4, 6),
    Sketcher.Constraint("Perpendicular", 6, 9),
    Sketcher.Constraint("Perpendicular", 9, 11),
    Sketcher.Constraint("Parallel", 11, 13),
    Sketcher.Constraint("Perpendicular", 13, 15),
    Sketcher.Constraint("Parallel", 15, 17),
    Sketcher.Constraint("Perpendicular", 17, 19),
    Sketcher.Constraint("Parallel", 19, 20),
    Sketcher.Constraint("Perpendicular", 20, 22),
    Sketcher.Constraint("Perpendicular", 22, 24),
    Sketcher.Constraint("Perpendicular", 24, 26),
    Sketcher.Constraint("Parallel", 26, 28),
    Sketcher.Constraint("Perpendicular", 28, 30),
    Sketcher.Constraint("Perpendicular", 30, 32),
    Sketcher.Constraint("Perpendicular", 32, 34),
    Sketcher.Constraint("Perpendicular", 34, 40),
    Sketcher.Constraint("Perpendicular", 40, 42),
    Sketcher.Constraint("Perpendicular", 42, 45),
    Sketcher.Constraint("Perpendicular", 45, 47),
    Sketcher.Constraint("Parallel", 47, 49),
    Sketcher.Constraint("Perpendicular", 49, 51),
    Sketcher.Constraint("Parallel", 51, 53),
    Sketcher.Constraint("Perpendicular", 53, 55),
    Sketcher.Constraint("Parallel", 55, 56),
    Sketcher.Constraint("Perpendicular", 56, 58),
    Sketcher.Constraint("Perpendicular", 58, 60),
    Sketcher.Constraint("Perpendicular", 60, 62),
    Sketcher.Constraint("Parallel", 62, 64),
    Sketcher.Constraint("Perpendicular", 64, 66),
    Sketcher.Constraint("Perpendicular", 66, 68),
    Sketcher.Constraint("Perpendicular", 68, 70),
    Sketcher.Constraint("Horizontal", 0, 3, 1, 3),
    Sketcher.Constraint("Horizontal", 4, 2, 5, 1),
    Sketcher.Constraint("Horizontal", 6, 2, 7, 2),
    Sketcher.Constraint("Horizontal", 13, 2, 14, 2),
    Sketcher.Constraint("Horizontal", 11, 2, 16, 1),
    Sketcher.Constraint("Horizontal", 9, 2, 18, 2),
    Sketcher.Constraint("Horizontal", 20, 2, 21, 2),
    Sketcher.Constraint("Horizontal", 24, 2, 25, 2),
    Sketcher.Constraint("Horizontal", 29, 2, 32, 2),
    Sketcher.Constraint("Horizontal", 28, 2, 33, 2),
    Sketcher.Constraint("Horizontal", 40, 2, 41, 1),
    Sketcher.Constraint("Horizontal", 19, 2, 44, 1),
    Sketcher.Constraint("Horizontal", 17, 2, 46, 2),
    Sketcher.Constraint("Horizontal", 15, 2, 48, 1),
    Sketcher.Constraint("Horizontal", 49, 2, 50, 2),
    Sketcher.Constraint("Horizontal", 47, 2, 52, 1),
    Sketcher.Constraint("Horizontal", 45, 2, 54, 2),
    Sketcher.Constraint("Horizontal", 21, 2, 56, 2),
    Sketcher.Constraint("Horizontal", 56, 2, 57, 2),
    Sketcher.Constraint("Horizontal", 25, 2, 60, 2),
    Sketcher.Constraint("Horizontal", 60, 2, 61, 2),
    Sketcher.Constraint("Horizontal", 33, 2, 64, 2),
    Sketcher.Constraint("Horizontal", 32, 2, 65, 2),
    Sketcher.Constraint("Horizontal", 65, 2, 68, 2),
    Sketcher.Constraint("Horizontal", 64, 2, 69, 2),
    Sketcher.Constraint("Vertical", 9, 2, 10, 2),
    Sketcher.Constraint("Vertical", 4, 2, 12, 1),
    Sketcher.Constraint("Vertical", 21, 2, 24, 2),
    Sketcher.Constraint("Vertical", 28, 2, 29, 2),
    Sketcher.Constraint("Equal", 6, 9),
    Sketcher.Constraint("Radius", 5, Q("21 mm")),
    Sketcher.Constraint("Radius", 7, Q("14.999999 mm")),
    Sketcher.Constraint("Radius", 21, Q("23.000001 mm")),
    Sketcher.Constraint("Radius", 23, Q("29 mm")),
    Sketcher.Constraint("Diameter", 0, Q("5.2 mm")),
    Sketcher.Constraint("DistanceX", 0, 3, -1, 1, Q("66 mm")),
    Sketcher.Constraint("DistanceY", 0, 3, -1, 1, Q("25 mm")),
    Sketcher.Constraint("DistanceX", 1, 3, -1, 1, Q("16 mm")),
    Sketcher.Constraint("DistanceX", 5, 3, -1, 1, Q("41 mm")),
    Sketcher.Constraint("DistanceX", 7, 2, -1, 1, Q("31.124102 mm")),
    Sketcher.Constraint("DistanceX", 20, 2, -1, 1, Q("56.54097 mm")),
    Sketcher.Constraint("DistanceY", -1, 1, 28, 2, Q("15.54097 mm")),
])
pocket6 = body.newObject("PartDesign::Pocket", "Pocket005")
pocket6.Profile = sketch11
pocket6.Type = "ThroughAll"
pocket6.Reversed = True

# Sketch on XY plane
sketch12 = body.newObject("Sketcher::SketchObject", "Sketch011")
sketch12.AttachmentSupport = (doc.getObject("XY_Plane"), [""])
sketch12.MapMode = "FlatFace"
add_polygon(sketch12, [(-6, -14), (-6, 14), (6, 14), (6, -14)])  # lines 0-3
sketch12.addConstraint([
    Sketcher.Constraint("Vertical", 0),
    Sketcher.Constraint("Horizontal", 1),
    Sketcher.Constraint("Vertical", 2),
    Sketcher.Constraint("Horizontal", 3),
    Sketcher.Constraint("Symmetric", 0, 2, 2, 2, -1, 1),
    Sketcher.Constraint("DistanceX", 1, 1, 1, 2, Q("11 mm")),
    Sketcher.Constraint("DistanceY", 0, 1, 0, 2, Q("29 mm")),
])
pocket7 = body.newObject("PartDesign::Pocket", "Pocket006")
pocket7.Profile = sketch12
pocket7.Type = "ThroughAll"
pocket7.Reversed = True
doc.recompute()

fillet = body.newObject("PartDesign::Fillet", "Fillet")
fillet.Base = (pocket7, edges_at(pocket7, [(87.213, 26.213, 0)]))
fillet.Radius = 3

doc.recompute()
